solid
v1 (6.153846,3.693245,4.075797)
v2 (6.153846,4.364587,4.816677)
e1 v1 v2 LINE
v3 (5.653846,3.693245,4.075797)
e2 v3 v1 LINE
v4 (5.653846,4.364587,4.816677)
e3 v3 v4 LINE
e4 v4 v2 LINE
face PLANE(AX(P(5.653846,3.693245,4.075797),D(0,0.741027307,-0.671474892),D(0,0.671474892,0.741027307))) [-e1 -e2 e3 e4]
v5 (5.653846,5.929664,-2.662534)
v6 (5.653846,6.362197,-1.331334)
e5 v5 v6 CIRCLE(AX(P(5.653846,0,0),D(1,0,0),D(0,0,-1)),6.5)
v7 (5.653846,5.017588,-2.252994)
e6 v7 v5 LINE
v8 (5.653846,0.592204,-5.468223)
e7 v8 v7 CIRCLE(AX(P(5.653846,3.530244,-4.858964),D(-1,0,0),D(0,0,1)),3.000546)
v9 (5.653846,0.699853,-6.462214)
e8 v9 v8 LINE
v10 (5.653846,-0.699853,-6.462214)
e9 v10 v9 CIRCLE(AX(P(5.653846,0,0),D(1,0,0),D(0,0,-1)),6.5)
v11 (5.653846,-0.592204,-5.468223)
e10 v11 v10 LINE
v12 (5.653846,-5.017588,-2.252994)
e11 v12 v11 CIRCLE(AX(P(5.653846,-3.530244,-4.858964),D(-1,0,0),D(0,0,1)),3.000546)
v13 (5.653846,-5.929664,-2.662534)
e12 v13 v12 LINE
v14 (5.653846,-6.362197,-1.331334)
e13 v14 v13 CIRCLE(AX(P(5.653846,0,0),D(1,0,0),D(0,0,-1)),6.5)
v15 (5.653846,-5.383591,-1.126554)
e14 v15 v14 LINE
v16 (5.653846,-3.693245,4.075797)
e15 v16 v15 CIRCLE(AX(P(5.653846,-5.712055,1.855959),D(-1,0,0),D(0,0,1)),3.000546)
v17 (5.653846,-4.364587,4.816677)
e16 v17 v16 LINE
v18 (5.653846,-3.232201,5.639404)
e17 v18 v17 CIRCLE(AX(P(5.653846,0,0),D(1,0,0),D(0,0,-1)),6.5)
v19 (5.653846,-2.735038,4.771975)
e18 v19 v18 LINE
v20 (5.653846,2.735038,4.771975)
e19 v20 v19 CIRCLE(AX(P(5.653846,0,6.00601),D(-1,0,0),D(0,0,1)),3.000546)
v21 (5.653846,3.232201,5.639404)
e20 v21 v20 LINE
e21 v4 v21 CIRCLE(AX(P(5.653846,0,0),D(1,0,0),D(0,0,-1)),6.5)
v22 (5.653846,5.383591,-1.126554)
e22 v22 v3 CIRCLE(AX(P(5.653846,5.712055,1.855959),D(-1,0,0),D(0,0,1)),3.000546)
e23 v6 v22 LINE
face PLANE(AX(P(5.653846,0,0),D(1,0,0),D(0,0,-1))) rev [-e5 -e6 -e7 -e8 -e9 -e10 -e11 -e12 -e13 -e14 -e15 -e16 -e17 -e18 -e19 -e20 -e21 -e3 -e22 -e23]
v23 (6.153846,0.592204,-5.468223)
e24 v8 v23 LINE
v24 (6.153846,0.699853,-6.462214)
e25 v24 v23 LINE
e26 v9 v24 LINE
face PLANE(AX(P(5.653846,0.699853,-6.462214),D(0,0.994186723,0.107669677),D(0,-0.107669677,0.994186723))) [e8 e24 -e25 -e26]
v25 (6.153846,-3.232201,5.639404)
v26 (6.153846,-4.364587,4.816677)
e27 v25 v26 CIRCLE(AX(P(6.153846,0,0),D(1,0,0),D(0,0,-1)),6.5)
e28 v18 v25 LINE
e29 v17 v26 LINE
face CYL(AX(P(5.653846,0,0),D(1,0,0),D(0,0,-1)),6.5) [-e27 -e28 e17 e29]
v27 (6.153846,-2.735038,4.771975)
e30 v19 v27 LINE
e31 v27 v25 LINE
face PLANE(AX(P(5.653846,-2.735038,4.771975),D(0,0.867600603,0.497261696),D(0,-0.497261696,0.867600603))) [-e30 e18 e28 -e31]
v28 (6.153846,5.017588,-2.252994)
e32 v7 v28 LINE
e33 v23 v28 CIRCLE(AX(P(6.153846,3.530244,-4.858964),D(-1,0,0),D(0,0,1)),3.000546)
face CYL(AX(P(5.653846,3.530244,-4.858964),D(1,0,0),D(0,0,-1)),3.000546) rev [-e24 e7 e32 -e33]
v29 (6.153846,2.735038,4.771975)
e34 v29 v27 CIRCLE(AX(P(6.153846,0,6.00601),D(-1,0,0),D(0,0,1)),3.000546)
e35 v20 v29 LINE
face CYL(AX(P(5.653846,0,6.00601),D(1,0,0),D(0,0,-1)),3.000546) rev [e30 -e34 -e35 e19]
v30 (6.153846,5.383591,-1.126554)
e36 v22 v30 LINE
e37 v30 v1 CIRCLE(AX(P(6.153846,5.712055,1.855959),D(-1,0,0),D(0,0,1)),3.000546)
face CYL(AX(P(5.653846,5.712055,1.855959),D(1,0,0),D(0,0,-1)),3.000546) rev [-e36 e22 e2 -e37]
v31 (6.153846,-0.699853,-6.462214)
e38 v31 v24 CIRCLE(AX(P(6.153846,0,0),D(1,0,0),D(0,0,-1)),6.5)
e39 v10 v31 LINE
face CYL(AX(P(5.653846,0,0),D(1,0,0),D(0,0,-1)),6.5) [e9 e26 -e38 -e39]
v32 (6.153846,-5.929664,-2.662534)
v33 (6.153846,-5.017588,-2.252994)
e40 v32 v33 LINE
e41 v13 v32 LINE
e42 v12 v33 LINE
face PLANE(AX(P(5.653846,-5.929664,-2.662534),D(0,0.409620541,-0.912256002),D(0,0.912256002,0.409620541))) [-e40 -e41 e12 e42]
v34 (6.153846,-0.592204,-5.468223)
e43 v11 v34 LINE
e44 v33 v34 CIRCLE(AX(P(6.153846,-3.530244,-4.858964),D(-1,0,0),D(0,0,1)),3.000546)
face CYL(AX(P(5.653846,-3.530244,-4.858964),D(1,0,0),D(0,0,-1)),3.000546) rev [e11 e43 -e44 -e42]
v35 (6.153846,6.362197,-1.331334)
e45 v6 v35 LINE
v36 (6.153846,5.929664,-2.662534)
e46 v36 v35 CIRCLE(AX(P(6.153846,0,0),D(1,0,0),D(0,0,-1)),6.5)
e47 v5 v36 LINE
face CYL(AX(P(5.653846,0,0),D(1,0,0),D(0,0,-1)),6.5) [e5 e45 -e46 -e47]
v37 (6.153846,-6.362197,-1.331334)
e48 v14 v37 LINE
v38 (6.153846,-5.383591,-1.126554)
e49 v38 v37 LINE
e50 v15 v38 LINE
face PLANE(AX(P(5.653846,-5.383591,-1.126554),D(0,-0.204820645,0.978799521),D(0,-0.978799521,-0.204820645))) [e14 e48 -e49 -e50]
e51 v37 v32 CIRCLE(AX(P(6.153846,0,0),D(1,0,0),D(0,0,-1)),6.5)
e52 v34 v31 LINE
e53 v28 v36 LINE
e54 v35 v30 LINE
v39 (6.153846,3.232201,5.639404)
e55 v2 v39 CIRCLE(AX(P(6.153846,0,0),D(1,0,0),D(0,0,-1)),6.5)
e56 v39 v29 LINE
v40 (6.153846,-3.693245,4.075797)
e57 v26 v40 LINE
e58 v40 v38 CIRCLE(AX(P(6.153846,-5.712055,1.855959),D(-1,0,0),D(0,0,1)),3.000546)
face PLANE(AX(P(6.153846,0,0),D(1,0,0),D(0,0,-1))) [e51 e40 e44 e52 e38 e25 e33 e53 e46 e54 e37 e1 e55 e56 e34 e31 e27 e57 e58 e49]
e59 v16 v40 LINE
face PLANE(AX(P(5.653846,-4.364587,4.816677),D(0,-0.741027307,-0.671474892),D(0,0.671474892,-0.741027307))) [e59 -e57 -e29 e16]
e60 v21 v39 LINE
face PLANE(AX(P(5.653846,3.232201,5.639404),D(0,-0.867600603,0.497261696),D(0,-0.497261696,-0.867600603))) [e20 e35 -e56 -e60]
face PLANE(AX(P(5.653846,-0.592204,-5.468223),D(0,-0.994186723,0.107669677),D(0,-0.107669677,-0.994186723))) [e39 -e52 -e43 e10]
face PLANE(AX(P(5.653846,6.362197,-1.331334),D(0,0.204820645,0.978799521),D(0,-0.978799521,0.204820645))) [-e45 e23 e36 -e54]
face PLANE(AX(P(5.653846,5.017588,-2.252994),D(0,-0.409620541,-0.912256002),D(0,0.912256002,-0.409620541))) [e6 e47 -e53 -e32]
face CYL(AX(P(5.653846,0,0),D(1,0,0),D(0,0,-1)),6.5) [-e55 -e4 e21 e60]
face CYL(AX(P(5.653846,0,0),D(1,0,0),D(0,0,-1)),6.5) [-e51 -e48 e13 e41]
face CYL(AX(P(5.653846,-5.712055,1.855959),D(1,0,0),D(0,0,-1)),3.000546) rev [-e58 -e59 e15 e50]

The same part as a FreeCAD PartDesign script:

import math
import FreeCAD as App
import Part
import Sketcher
from FreeCAD import Vector
Q = App.Units.Quantity

doc = App.newDocument("Part")
body = doc.addObject("PartDesign::Body", "Body")

# Sketch on YZ plane
sketch1 = body.newObject("Sketcher::SketchObject", "Sketch")
sketch1.AttachmentSupport = (doc.getObject("YZ_Plane"), [""])
sketch1.MapMode = "FlatFace"
sketch1.AttachmentOffset = App.Placement(Vector(0, 0, 6.153846), App.Rotation())
sketch1.addGeometry(Part.LineSegment(Vector(-4.4, 4.8, 0), Vector(-3.7, 4.1, 0)), False)
sketch1.addGeometry(Part.ArcOfCircle(Part.Circle(Vector(-5.7, 1.9, 0), Vector(0, 0, 1), 3), math.radians(-84), math.radians(48)), False)
sketch1.addGeometry(Part.LineSegment(Vector(-5.4, -1.1, 0), Vector(-6.4, -1.3, 0)), False)
sketch1.addGeometry(Part.ArcOfCircle(Part.Circle(Vector(0, 0, 0), Vector(0, 0, 1), 6.5), math.radians(-168.18), math.radians(-155.82)), False)
sketch1.addGeometry(Part.LineSegment(Vector(-5.9, -2.7, 0), Vector(-5, -2.3, 0)), False)
sketch1.addGeometry(Part.ArcOfCircle(Part.Circle(Vector(-3.5, -4.9, 0), Vector(0, 0, 1), 3), math.radians(-12), math.radians(120)), False)
sketch1.addGeometry(Part.LineSegment(Vector(-0.6, -5.5, 0), Vector(-0.7, -6.5, 0)), False)
sketch1.addGeometry(Part.ArcOfCircle(Part.Circle(Vector(0, 0, 0), Vector(0, 0, 1), 6.5), math.radians(-96.18), math.radians(-83.82)), False)
sketch1.addGeometry(Part.LineSegment(Vector(0.7, -6.5, 0), Vector(0.6, -5.5, 0)), False)
sketch1.addGeometry(Part.ArcOfCircle(Part.Circle(Vector(3.5, -4.9, 0), Vector(0, 0, 1), 3), math.radians(60), math.radians(192)), False)
sketch1.addGeometry(Part.LineSegment(Vector(5, -2.3, 0), Vector(5.9, -2.7, 0)), False)
sketch1.addGeometry(Part.ArcOfCircle(Part.Circle(Vector(0, 0, 0), Vector(0, 0, 1), 6.5), math.radians(-24.18), math.radians(-11.82)), False)
sketch1.addGeometry(Part.LineSegment(Vector(6.4, -1.3, 0), Vector(5.4, -1.1, 0)), False)
sketch1.addGeometry(Part.ArcOfCircle(Part.Circle(Vector(5.7, 1.9, 0), Vector(0, 0, 1), 3), math.radians(132), math.radians(264)), False)
sketch1.addGeometry(Part.LineSegment(Vector(3.7, 4.1, 0), Vector(4.4, 4.8, 0)), False)
sketch1.addGeometry(Part.ArcOfCircle(Part.Circle(Vector(0, 0, 0), Vector(0, 0, 1), 6.5), math.radians(47.82), math.radians(60.18)), False)
sketch1.addGeometry(Part.LineSegment(Vector(3.2, 5.6, 0), Vector(2.7, 4.8, 0)), False)
sketch1.addGeometry(Part.ArcOfCircle(Part.Circle(Vector(0, 6, 0), Vector(0, 0, 1), 3), math.radians(-156), math.radians(-24)), False)
sketch1.addGeometry(Part.LineSegment(Vector(-2.7, 4.8, 0), Vector(-3.2, 5.6, 0)), False)
sketch1.addGeometry(Part.ArcOfCircle(Part.Circle(Vector(0, 0, 0), Vector(0, 0, 1), 6.5), math.radians(119.82), math.radians(132.18)), False)
sketch1.addConstraint(Sketcher.Constraint("Coincident", 0, 2, 1, 2))
sketch1.addConstraint(Sketcher.Constraint("Coincident", 1, 1, 2, 1))
sketch1.addConstraint(Sketcher.Constraint("Coincident", 2, 2, 3, 1))
sketch1.addConstraint(Sketcher.Constraint("Coincident", 3, 2, 4, 1))
sketch1.addConstraint(Sketcher.Constraint("Coincident", 4, 2, 5, 2))
sketch1.addConstraint(Sketcher.Constraint("Coincident", 5, 1, 6, 1))
sketch1.addConstraint(Sketcher.Constraint("Coincident", 6, 2, 7, 1))
sketch1.addConstraint(Sketcher.Constraint("Coincident", 7, 2, 8, 1))
sketch1.addConstraint(Sketcher.Constraint("Coincident", 8, 2, 9, 2))
sketch1.addConstraint(Sketcher.Constraint("Coincident", 9, 1, 10, 1))
sketch1.addConstraint(Sketcher.Constraint("Coincident", 10, 2, 11, 1))
sketch1.addConstraint(Sketcher.Constraint("Coincident", 11, 2, 12, 1))
sketch1.addConstraint(Sketcher.Constraint("Coincident", 12, 2, 13, 2))
sketch1.addConstraint(Sketcher.Constraint("Coincident", 13, 1, 14, 1))
sketch1.addConstraint(Sketcher.Constraint("Coincident", 14, 2, 15, 1))
sketch1.addConstraint(Sketcher.Constraint("Coincident", 15, 2, 16, 1))
sketch1.addConstraint(Sketcher.Constraint("Coincident", 16, 2, 17, 2))
sketch1.addConstraint(Sketcher.Constraint("Coincident", 17, 1, 18, 1))
sketch1.addConstraint(Sketcher.Constraint("Coincident", 18, 2, 19, 1))
sketch1.addConstraint(Sketcher.Constraint("Coincident", 19, 2, 0, 1))
sketch1.addConstraint(Sketcher.Constraint("Coincident", 3, 3, -1, 1))
sketch1.addConstraint(Sketcher.Constraint("Coincident", 7, 3, -1, 1))
sketch1.addConstraint(Sketcher.Constraint("Coincident", 11, 3, -1, 1))
sketch1.addConstraint(Sketcher.Constraint("Coincident", 15, 3, -1, 1))
sketch1.addConstraint(Sketcher.Constraint("Coincident", 19, 3, -1, 1))
sketch1.addConstraint(Sketcher.Constraint("Equal", 1, 5))
sketch1.addConstraint(Sketcher.Constraint("Equal", 3, 7))
sketch1.addConstraint(Sketcher.Constraint("Equal", 5, 9))
sketch1.addConstraint(Sketcher.Constraint("Equal", 7, 11))
sketch1.addConstraint(Sketcher.Constraint("Equal", 9, 13))
sketch1.addConstraint(Sketcher.Constraint("Equal", 11, 15))
sketch1.addConstraint(Sketcher.Constraint("Equal", 13, 17))
sketch1.addConstraint(Sketcher.Constraint("Equal", 15, 19))
sketch1.addConstraint(Sketcher.Constraint("Symmetric", 5, 3, 9, 3, -2))
sketch1.addConstraint(Sketcher.Constraint("Symmetric", 1, 3, 13, 3, -2))
sketch1.addConstraint(Sketcher.Constraint("Symmetric", 16, 2, 17, 1, -2))
sketch1.addConstraint(Sketcher.Constraint("Horizontal", 6, 2, 7, 2))
sketch1.addConstraint(Sketcher.Constraint("Horizontal", 5, 1, 8, 2))
sketch1.addConstraint(Sketcher.Constraint("Horizontal", 4, 2, 9, 1))
sketch1.addConstraint(Sketcher.Constraint("Horizontal", 3, 2, 10, 2))
sketch1.addConstraint(Sketcher.Constraint("Horizontal", 2, 2, 11, 2))
sketch1.addConstraint(Sketcher.Constraint("Horizontal", 1, 1, 12, 2))
sketch1.addConstraint(Sketcher.Constraint("Horizontal", 0, 2, 13, 1))
sketch1.addConstraint(Sketcher.Constraint("Horizontal", 15, 2, 18, 2))
sketch1.addConstraint(Sketcher.Constraint("Horizontal", 14, 2, 19, 2))
sketch1.addConstraint(Sketcher.Constraint("Equal", 0, 2))
sketch1.addConstraint(Sketcher.Constraint("Equal", 2, 4))
sketch1.addConstraint(Sketcher.Constraint("Equal", 4, 6))
sketch1.addConstraint(Sketcher.Constraint("Equal", 14, 16))
sketch1.addConstraint(Sketcher.Constraint("Radius", 3, Q("6.5 mm")))
sketch1.addConstraint(Sketcher.Constraint("Radius", 1, Q("3.000546 mm")))
sketch1.addConstraint(Sketcher.Constraint("DistanceX", -1, 1, 15, 2, Q("3.232201 mm")))
sketch1.addConstraint(Sketcher.Constraint("DistanceX", 1, 3, 9, 3, Q("9.242299 mm")))
sketch1.addConstraint(Sketcher.Constraint("DistanceY", 3, 2, 2, 2, Q("1.331199 mm")))
sketch1.addConstraint(Sketcher.Constraint("DistanceY", -1, 1, 1, 3, Q("1.855959 mm")))
sketch1.addConstraint(Sketcher.Constraint("DistanceY", -1, 1, 17, 3, Q("6.00601 mm")))
sketch1.addConstraint(Sketcher.Constraint("DistanceX", 1, 1, -1, 1, Q("5.383591 mm")))
sketch1.addConstraint(Sketcher.Constraint("DistanceX", 4, 2, -1, 1, Q("5.017588 mm")))
sketch1.addConstraint(Sketcher.Constraint("DistanceX", 1, 3, 5, 3, Q("2.181811 mm")))
sketch1.addConstraint(Sketcher.Constraint("DistanceY", 2, 2, 1, 1, Q("0.20478 mm")))
sketch1.addConstraint(Sketcher.Constraint("DistanceX", 6, 2, 5, 1, Q("0.107648 mm")))
sketch1.addConstraint(Sketcher.Constraint("DistanceY", 13, 1, 14, 2, Q("0.740881 mm")))
pad1 = body.newObject("PartDesign::Pad", "Pad")
pad1.Profile = sketch1
pad1.Length = 0.5
pad1.Reversed = True

doc.recompute()
